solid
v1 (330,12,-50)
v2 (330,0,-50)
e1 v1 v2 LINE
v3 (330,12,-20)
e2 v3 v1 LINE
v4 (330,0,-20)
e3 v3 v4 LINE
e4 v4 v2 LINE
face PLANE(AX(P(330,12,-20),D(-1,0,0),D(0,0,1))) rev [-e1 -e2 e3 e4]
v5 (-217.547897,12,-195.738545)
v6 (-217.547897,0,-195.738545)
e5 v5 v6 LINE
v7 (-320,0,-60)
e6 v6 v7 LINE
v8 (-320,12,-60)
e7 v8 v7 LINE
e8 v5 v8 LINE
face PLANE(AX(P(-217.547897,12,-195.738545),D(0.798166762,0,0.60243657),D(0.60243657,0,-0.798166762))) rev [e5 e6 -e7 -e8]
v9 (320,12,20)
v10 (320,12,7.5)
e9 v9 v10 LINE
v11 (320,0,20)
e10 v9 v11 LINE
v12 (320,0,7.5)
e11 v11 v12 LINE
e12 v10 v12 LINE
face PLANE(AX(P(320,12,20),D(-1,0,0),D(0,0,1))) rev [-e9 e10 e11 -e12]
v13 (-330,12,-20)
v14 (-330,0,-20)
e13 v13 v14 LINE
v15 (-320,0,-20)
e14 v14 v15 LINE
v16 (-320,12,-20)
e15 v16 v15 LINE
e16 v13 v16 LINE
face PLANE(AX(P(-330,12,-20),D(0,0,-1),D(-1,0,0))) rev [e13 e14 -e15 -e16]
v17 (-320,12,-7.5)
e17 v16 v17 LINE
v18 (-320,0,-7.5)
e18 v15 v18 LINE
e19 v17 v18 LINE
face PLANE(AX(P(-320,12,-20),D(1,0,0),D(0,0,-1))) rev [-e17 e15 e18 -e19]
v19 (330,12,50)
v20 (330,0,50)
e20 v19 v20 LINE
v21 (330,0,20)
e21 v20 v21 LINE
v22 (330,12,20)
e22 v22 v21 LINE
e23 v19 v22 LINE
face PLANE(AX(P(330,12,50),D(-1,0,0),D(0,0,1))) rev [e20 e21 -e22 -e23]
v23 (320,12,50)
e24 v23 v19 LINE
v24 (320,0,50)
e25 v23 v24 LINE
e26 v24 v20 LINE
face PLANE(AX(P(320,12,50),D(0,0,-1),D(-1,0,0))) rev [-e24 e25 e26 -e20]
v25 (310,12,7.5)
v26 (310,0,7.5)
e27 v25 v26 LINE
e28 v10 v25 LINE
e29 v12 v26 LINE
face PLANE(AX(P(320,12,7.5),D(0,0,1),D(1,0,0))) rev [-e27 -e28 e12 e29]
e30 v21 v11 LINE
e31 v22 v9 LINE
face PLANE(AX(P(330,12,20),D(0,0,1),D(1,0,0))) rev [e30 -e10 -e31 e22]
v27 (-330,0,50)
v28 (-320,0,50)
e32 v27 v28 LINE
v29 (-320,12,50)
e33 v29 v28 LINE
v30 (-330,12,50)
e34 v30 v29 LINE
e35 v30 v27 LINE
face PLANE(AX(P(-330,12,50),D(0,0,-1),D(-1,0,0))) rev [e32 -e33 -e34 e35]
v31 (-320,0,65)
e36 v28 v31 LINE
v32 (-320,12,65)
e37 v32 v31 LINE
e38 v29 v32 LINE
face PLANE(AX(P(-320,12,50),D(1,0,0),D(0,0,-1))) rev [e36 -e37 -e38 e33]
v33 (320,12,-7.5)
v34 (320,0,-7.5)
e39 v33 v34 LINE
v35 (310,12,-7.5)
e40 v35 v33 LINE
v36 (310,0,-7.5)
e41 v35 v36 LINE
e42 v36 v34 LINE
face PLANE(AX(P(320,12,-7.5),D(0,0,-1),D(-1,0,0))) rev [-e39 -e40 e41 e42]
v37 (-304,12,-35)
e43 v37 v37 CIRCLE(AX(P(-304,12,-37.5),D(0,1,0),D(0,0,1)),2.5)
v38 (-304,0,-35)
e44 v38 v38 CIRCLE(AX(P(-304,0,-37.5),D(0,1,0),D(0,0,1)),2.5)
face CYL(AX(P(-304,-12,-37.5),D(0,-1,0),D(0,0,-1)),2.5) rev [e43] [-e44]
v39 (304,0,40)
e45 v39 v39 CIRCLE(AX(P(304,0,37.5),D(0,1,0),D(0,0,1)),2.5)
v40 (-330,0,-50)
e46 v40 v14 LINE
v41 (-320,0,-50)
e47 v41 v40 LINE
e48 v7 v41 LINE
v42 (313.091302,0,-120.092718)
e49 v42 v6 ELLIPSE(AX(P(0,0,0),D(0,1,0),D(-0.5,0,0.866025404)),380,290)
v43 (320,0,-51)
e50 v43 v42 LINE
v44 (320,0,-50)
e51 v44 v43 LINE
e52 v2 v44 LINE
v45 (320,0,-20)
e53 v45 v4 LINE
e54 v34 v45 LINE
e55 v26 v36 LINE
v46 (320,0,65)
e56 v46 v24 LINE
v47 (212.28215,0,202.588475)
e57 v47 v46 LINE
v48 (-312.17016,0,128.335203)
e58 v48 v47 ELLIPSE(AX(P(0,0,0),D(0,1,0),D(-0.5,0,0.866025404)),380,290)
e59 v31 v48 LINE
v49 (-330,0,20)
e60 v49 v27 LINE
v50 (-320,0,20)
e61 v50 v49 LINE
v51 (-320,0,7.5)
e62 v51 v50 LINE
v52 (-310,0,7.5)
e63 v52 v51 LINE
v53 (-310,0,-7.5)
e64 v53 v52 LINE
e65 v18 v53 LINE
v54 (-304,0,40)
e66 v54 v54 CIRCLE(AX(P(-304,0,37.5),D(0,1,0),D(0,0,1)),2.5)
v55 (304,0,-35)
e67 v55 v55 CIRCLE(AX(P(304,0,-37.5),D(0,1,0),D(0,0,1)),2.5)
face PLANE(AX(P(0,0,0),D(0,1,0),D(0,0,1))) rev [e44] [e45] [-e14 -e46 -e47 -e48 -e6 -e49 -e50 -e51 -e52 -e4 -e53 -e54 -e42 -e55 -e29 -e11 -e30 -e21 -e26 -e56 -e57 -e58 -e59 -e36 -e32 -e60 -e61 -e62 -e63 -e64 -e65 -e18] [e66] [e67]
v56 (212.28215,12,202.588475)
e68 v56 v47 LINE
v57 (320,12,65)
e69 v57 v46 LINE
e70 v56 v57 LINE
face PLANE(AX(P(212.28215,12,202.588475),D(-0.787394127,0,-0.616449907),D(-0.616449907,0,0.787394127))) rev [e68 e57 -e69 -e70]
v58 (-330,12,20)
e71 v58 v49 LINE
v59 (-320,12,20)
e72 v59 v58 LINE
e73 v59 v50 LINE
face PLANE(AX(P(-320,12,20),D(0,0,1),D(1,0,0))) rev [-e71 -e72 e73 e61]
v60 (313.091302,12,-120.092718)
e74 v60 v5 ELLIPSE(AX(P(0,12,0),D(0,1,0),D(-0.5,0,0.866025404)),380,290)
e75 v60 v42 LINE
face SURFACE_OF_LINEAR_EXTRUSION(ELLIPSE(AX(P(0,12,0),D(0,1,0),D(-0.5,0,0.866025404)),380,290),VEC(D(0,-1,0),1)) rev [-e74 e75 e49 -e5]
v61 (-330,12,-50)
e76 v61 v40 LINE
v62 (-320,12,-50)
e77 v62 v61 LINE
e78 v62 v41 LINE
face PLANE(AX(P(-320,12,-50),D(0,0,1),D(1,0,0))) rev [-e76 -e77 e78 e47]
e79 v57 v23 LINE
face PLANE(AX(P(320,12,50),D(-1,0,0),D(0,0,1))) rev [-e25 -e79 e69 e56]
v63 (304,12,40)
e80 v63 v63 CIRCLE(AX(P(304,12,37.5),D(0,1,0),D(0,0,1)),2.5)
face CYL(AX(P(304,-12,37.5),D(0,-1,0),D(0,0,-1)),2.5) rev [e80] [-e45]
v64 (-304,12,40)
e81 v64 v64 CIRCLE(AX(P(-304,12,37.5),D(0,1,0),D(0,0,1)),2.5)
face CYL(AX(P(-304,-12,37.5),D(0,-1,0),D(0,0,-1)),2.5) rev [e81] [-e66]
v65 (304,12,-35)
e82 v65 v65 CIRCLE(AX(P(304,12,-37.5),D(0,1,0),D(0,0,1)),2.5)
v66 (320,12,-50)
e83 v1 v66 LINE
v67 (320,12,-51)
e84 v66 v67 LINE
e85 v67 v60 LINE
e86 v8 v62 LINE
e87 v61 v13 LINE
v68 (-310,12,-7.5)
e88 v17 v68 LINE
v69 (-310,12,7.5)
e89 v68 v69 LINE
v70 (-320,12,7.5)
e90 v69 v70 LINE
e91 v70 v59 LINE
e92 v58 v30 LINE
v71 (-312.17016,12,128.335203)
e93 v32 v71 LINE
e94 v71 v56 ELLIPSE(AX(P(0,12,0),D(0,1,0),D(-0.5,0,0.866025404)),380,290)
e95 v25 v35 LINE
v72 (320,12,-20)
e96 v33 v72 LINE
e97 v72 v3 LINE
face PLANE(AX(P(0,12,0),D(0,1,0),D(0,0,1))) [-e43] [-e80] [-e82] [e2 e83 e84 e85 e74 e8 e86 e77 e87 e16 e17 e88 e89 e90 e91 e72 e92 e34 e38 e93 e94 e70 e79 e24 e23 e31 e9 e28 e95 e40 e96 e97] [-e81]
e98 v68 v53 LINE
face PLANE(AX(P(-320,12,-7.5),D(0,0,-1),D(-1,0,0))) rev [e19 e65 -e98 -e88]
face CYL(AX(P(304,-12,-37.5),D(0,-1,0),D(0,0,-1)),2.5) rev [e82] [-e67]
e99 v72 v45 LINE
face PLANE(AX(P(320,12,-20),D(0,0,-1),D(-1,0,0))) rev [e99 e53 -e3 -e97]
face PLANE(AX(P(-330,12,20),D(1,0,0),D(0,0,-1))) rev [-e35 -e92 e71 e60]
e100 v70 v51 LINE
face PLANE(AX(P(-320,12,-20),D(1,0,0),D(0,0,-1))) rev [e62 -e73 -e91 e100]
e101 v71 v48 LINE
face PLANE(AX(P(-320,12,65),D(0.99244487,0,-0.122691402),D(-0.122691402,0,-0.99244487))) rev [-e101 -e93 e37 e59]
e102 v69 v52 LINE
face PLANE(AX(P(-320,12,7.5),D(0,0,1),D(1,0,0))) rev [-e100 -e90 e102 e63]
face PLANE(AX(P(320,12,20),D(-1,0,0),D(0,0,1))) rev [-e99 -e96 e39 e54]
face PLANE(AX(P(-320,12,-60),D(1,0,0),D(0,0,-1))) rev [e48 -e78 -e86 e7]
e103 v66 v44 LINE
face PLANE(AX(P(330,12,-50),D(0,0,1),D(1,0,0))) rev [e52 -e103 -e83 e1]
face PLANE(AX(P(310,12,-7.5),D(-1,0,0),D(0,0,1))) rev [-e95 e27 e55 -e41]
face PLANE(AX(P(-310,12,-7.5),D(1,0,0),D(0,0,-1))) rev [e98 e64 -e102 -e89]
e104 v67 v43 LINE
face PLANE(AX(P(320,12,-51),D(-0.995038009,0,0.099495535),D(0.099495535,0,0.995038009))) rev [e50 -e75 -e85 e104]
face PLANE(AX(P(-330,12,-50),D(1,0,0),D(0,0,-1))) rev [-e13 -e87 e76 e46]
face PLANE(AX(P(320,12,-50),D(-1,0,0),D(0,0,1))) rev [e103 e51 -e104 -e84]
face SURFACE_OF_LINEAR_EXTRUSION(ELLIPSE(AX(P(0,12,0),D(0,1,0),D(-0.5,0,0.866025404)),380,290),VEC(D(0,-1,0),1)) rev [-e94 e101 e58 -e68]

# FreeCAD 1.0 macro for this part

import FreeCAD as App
import Part
import Sketcher

V = App.Vector


def add_polygon(sketch, points):
    """Adds a closed chain of lines whose ends are joined by coincident constraints."""
    first, n = sketch.GeometryCount, len(points)
    for a, b in zip(points, points[1:] + points[:1]):
        sketch.addGeometry(Part.LineSegment(App.Vector(*a, 0), App.Vector(*b, 0)), False)
    for i in range(n):
        sketch.addConstraint(Sketcher.Constraint("Coincident", first + i, 2, first + (i + 1) % n, 1))

doc = App.newDocument("Part")
body = doc.addObject("PartDesign::Body", "Body")

sketch1 = body.newObject("Sketcher::SketchObject", "Sketch")
sketch1.AttachmentSupport = (doc.getObject("XZ_Plane"), [""])
sketch1.MapMode = "FlatFace"
sketch1.addGeometry(Part.LineSegment(V(-320, 65, 0), V(-312.17016, 128.335203, 0)), False)
sketch1.addGeometry(Part.BSplineCurve([V(-312.17016, 128.335203, 0), V(-232.721291, 770.993291, 0), V(212.28215, 202.588475, 0)], [3, 3], [5.492316601, 7.67057167], False, 2, [1, 0.463258742, 1], False), False)
sketch1.addGeometry(Part.LineSegment(V(212.28215, 202.588475, 0), V(320, 65, 0)), False)
sketch1.addGeometry(Part.LineSegment(V(320, 65, 0), V(320, 50, 0)), False)
sketch1.addGeometry(Part.LineSegment(V(320, 50, 0), V(330, 50, 0)), False)
sketch1.addGeometry(Part.LineSegment(V(330, 50, 0), V(330, 20, 0)), False)
sketch1.addGeometry(Part.LineSegment(V(330, 20, 0), V(320, 20, 0)), False)
sketch1.addGeometry(Part.LineSegment(V(320, 20, 0), V(320, -20, 0)), False)
sketch1.addGeometry(Part.LineSegment(V(320, -20, 0), V(330, -20, 0)), False)
sketch1.addGeometry(Part.LineSegment(V(330, -20, 0), V(330, -50, 0)), False)
sketch1.addGeometry(Part.LineSegment(V(330, -50, 0), V(320, -50, 0)), False)
sketch1.addGeometry(Part.LineSegment(V(320, -50, 0), V(320, -51, 0)), False)
sketch1.addGeometry(Part.LineSegment(V(320, -51, 0), V(313.091302, -120.092718, 0)), False)
sketch1.addGeometry(Part.BSplineCurve([V(313.091302, -120.092718, 0), V(244.337364, -807.689216, 0), V(-217.547897, -195.738545, 0)], [3, 3], [2.326299806, 4.55185667], False, 2, [1, 0.442171166, 1], False), False)
sketch1.addGeometry(Part.LineSegment(V(-217.547897, -195.738545, 0), V(-320, -60, 0)), False)
sketch1.addGeometry(Part.LineSegment(V(-320, -60, 0), V(-320, -50, 0)), False)
sketch1.addGeometry(Part.LineSegment(V(-320, -50, 0), V(-330, -50, 0)), False)
sketch1.addGeometry(Part.LineSegment(V(-330, -50, 0), V(-330, -20, 0)), False)
sketch1.addGeometry(Part.LineSegment(V(-330, -20, 0), V(-320, -20, 0)), False)
sketch1.addGeometry(Part.LineSegment(V(-320, -20, 0), V(-320, 20, 0)), False)
sketch1.addGeometry(Part.LineSegment(V(-320, 20, 0), V(-330, 20, 0)), False)
sketch1.addGeometry(Part.LineSegment(V(-330, 20, 0), V(-330, 50, 0)), False)
sketch1.addGeometry(Part.LineSegment(V(-330, 50, 0), V(-320, 50, 0)), False)
sketch1.addGeometry(Part.LineSegment(V(-320, 50, 0), V(-320, 65, 0)), False)
sketch1.addConstraint(Sketcher.Constraint("Block", 1))
sketch1.addConstraint(Sketcher.Constraint("Block", 13))
sketch1.addConstraint(Sketcher.Constraint("Coincident", 0, 2, 1, 1))
sketch1.addConstraint(Sketcher.Constraint("Coincident", 1, 2, 2, 1))
sketch1.addConstraint(Sketcher.Constraint("Coincident", 2, 2, 3, 1))
sketch1.addConstraint(Sketcher.Constraint("Coincident", 3, 2, 4, 1))
sketch1.addConstraint(Sketcher.Constraint("Coincident", 4, 2, 5, 1))
sketch1.addConstraint(Sketcher.Constraint("Coincident", 5, 2, 6, 1))
sketch1.addConstraint(Sketcher.Constraint("Coincident", 6, 2, 7, 1))
sketch1.addConstraint(Sketcher.Constraint("Coincident", 7, 2, 8, 1))
sketch1.addConstraint(Sketcher.Constraint("Coincident", 8, 2, 9, 1))
sketch1.addConstraint(Sketcher.Constraint("Coincident", 9, 2, 10, 1))
sketch1.addConstraint(Sketcher.Constraint("Coincident", 10, 2, 11, 1))
sketch1.addConstraint(Sketcher.Constraint("Coincident", 11, 2, 12, 1))
sketch1.addConstraint(Sketcher.Constraint("Coincident", 12, 2, 13, 1))
sketch1.addConstraint(Sketcher.Constraint("Coincident", 13, 2, 14, 1))
sketch1.addConstraint(Sketcher.Constraint("Coincident", 14, 2, 15, 1))
sketch1.addConstraint(Sketcher.Constraint("Coincident", 15, 2, 16, 1))
sketch1.addConstraint(Sketcher.Constraint("Coincident", 16, 2, 17, 1))
sketch1.addConstraint(Sketcher.Constraint("Coincident", 17, 2, 18, 1))
sketch1.addConstraint(Sketcher.Constraint("Coincident", 18, 2, 19, 1))
sketch1.addConstraint(Sketcher.Constraint("Coincident", 19, 2, 20, 1))
sketch1.addConstraint(Sketcher.Constraint("Coincident", 20, 2, 21, 1))
sketch1.addConstraint(Sketcher.Constraint("Coincident", 21, 2, 22, 1))
sketch1.addConstraint(Sketcher.Constraint("Coincident", 22, 2, 23, 1))
sketch1.addConstraint(Sketcher.Constraint("Coincident", 23, 2, 0, 1))
sketch1.addConstraint(Sketcher.Constraint("Vertical", 3))
sketch1.addConstraint(Sketcher.Constraint("Horizontal", 4))
sketch1.addConstraint(Sketcher.Constraint("Vertical", 5))
sketch1.addConstraint(Sketcher.Constraint("Horizontal", 6))
sketch1.addConstraint(Sketcher.Constraint("Vertical", 7))
sketch1.addConstraint(Sketcher.Constraint("Horizontal", 8))
sketch1.addConstraint(Sketcher.Constraint("Vertical", 9))
sketch1.addConstraint(Sketcher.Constraint("Horizontal", 10))
sketch1.addConstraint(Sketcher.Constraint("Vertical", 11))
sketch1.addConstraint(Sketcher.Constraint("Vertical", 15))
sketch1.addConstraint(Sketcher.Constraint("Horizontal", 16))
sketch1.addConstraint(Sketcher.Constraint("Vertical", 17))
sketch1.addConstraint(Sketcher.Constraint("Horizontal", 18))
sketch1.addConstraint(Sketcher.Constraint("Vertical", 19))
sketch1.addConstraint(Sketcher.Constraint("Horizontal", 20))
sketch1.addConstraint(Sketcher.Constraint("Vertical", 21))
sketch1.addConstraint(Sketcher.Constraint("Horizontal", 22))
sketch1.addConstraint(Sketcher.Constraint("Vertical", 23))
sketch1.addConstraint(Sketcher.Constraint("Symmetric", 3, 2, 15, 2, -1, 1))
sketch1.addConstraint(Sketcher.Constraint("Symmetric", 5, 2, 17, 2, -1, 1))
sketch1.addConstraint(Sketcher.Constraint("Symmetric", 7, 2, 19, 2, -1, 1))
sketch1.addConstraint(Sketcher.Constraint("Symmetric", 9, 2, 21, 2, -1, 1))
sketch1.addConstraint(Sketcher.Constraint("Symmetric", 10, 2, 15, 2, -2))
sketch1.addConstraint(Sketcher.Constraint("Symmetric", 8, 2, 17, 2, -2))
sketch1.addConstraint(Sketcher.Constraint("Symmetric", 2, 2, 23, 2, -2))
sketch1.addConstraint(Sketcher.Constraint("Vertical", 3, 2, 6, 2))
sketch1.addConstraint(Sketcher.Constraint("Equal", 22, 15))
sketch1.addConstraint(Sketcher.Constraint("DistanceX", 4, 1, 4, 2, 10.0))
sketch1.addConstraint(Sketcher.Constraint("DistanceY", 3, 2, 3, 1, 15.0))
sketch1.addConstraint(Sketcher.Constraint("DistanceY", 5, 2, 5, 1, 30.0))
sketch1.addConstraint(Sketcher.Constraint("DistanceY", 7, 2, 7, 1, 40.0))
sketch1.addConstraint(Sketcher.Constraint("DistanceY", 11, 2, 11, 1, 1.0))
sketch1.addConstraint(Sketcher.Constraint("DistanceX", -1, 1, 2, 2, 320.0))
pad1 = body.newObject("PartDesign::Pad", "Pad")
pad1.Profile = sketch1
pad1.Length = 12
pad1.Reversed = True

sketch2 = body.newObject("Sketcher::SketchObject", "Sketch001")
sketch2.AttachmentSupport = (doc.getObject("XZ_Plane"), [""])
sketch2.MapMode = "FlatFace"
add_polygon(sketch2, [(310, 8), (310, -8), (320, -8), (320, 8)])
add_polygon(sketch2, [(-320, 8), (-320, -8), (-310, -8), (-310, 8)])
sketch2.addConstraint(Sketcher.Constraint("Vertical", 0))
sketch2.addConstraint(Sketcher.Constraint("Horizontal", 1))
sketch2.addConstraint(Sketcher.Constraint("Vertical", 2))
sketch2.addConstraint(Sketcher.Constraint("Horizontal", 3))
sketch2.addConstraint(Sketcher.Constraint("Vertical", 4))
sketch2.addConstraint(Sketcher.Constraint("Horizontal", 5))
sketch2.addConstraint(Sketcher.Constraint("Vertical", 6))
sketch2.addConstraint(Sketcher.Constraint("Horizontal", 7))
sketch2.addConstraint(Sketcher.Constraint("Symmetric", 2, 2, 4, 2, -1, 1))
sketch2.addConstraint(Sketcher.Constraint("Symmetric", 0, 2, 6, 2, -1, 1))
sketch2.addConstraint(Sketcher.Constraint("Horizontal", 1, 2, 4, 2))
sketch2.addConstraint(Sketcher.Constraint("DistanceX", 1, 1, 1, 2, 10.0))
sketch2.addConstraint(Sketcher.Constraint("DistanceY", 0, 2, 0, 1, 15.0))
sketch2.addConstraint(Sketcher.Constraint("DistanceX", -1, 1, 0, 2, 310.0))
pocket1 = body.newObject("PartDesign::Pocket", "Pocket")
pocket1.Profile = sketch2
pocket1.Length = 12

sketch3 = body.newObject("Sketcher::SketchObject", "Sketch002")
sketch3.AttachmentSupport = (doc.getObject("XZ_Plane"), [""])
sketch3.MapMode = "FlatFace"
sketch3.AttachmentOffset = App.Placement(V(0, 0, 12), App.Rotation())
sketch3.addGeometry(Part.Circle(V(-304, -37.5, 0), V(0, 0, 1), 2.5), False)
sketch3.addGeometry(Part.Circle(V(-304, 37.5, 0), V(0, 0, 1), 2.5), False)
sketch3.addGeometry(Part.Circle(V(304, 37.5, 0), V(0, 0, 1), 2.5), False)
sketch3.addGeometry(Part.Circle(V(304, -37.5, 0), V(0, 0, 1), 2.5), False)
sketch3.addConstraint(Sketcher.Constraint("Equal", 0, 1))
sketch3.addConstraint(Sketcher.Constraint("Equal", 1, 2))
sketch3.addConstraint(Sketcher.Constraint("Equal", 2, 3))
sketch3.addConstraint(Sketcher.Constraint("Symmetric", 0, 3, 2, 3, -1, 1))
sketch3.addConstraint(Sketcher.Constraint("Symmetric", 1, 3, 3, 3, -1, 1))
sketch3.addConstraint(Sketcher.Constraint("Symmetric", 1, 3, 2, 3, -2))
sketch3.addConstraint(Sketcher.Constraint("Diameter", 0, 5.0))
sketch3.addConstraint(Sketcher.Constraint("DistanceX", 0, 3, -1, 1, 304.0))
sketch3.addConstraint(Sketcher.Constraint("DistanceY", 0, 3, 1, 3, 75.0))
doc.recompute()
hole = body.newObject("PartDesign::Hole", "Hole")
hole.Profile = sketch3
hole.ThreadType = "None"
hole.Diameter = 5
hole.DepthType = "Dimension"
hole.Depth = 25
hole.DrillPoint = "Angled"
hole.DrillPointAngle = 118

doc.recompute()
